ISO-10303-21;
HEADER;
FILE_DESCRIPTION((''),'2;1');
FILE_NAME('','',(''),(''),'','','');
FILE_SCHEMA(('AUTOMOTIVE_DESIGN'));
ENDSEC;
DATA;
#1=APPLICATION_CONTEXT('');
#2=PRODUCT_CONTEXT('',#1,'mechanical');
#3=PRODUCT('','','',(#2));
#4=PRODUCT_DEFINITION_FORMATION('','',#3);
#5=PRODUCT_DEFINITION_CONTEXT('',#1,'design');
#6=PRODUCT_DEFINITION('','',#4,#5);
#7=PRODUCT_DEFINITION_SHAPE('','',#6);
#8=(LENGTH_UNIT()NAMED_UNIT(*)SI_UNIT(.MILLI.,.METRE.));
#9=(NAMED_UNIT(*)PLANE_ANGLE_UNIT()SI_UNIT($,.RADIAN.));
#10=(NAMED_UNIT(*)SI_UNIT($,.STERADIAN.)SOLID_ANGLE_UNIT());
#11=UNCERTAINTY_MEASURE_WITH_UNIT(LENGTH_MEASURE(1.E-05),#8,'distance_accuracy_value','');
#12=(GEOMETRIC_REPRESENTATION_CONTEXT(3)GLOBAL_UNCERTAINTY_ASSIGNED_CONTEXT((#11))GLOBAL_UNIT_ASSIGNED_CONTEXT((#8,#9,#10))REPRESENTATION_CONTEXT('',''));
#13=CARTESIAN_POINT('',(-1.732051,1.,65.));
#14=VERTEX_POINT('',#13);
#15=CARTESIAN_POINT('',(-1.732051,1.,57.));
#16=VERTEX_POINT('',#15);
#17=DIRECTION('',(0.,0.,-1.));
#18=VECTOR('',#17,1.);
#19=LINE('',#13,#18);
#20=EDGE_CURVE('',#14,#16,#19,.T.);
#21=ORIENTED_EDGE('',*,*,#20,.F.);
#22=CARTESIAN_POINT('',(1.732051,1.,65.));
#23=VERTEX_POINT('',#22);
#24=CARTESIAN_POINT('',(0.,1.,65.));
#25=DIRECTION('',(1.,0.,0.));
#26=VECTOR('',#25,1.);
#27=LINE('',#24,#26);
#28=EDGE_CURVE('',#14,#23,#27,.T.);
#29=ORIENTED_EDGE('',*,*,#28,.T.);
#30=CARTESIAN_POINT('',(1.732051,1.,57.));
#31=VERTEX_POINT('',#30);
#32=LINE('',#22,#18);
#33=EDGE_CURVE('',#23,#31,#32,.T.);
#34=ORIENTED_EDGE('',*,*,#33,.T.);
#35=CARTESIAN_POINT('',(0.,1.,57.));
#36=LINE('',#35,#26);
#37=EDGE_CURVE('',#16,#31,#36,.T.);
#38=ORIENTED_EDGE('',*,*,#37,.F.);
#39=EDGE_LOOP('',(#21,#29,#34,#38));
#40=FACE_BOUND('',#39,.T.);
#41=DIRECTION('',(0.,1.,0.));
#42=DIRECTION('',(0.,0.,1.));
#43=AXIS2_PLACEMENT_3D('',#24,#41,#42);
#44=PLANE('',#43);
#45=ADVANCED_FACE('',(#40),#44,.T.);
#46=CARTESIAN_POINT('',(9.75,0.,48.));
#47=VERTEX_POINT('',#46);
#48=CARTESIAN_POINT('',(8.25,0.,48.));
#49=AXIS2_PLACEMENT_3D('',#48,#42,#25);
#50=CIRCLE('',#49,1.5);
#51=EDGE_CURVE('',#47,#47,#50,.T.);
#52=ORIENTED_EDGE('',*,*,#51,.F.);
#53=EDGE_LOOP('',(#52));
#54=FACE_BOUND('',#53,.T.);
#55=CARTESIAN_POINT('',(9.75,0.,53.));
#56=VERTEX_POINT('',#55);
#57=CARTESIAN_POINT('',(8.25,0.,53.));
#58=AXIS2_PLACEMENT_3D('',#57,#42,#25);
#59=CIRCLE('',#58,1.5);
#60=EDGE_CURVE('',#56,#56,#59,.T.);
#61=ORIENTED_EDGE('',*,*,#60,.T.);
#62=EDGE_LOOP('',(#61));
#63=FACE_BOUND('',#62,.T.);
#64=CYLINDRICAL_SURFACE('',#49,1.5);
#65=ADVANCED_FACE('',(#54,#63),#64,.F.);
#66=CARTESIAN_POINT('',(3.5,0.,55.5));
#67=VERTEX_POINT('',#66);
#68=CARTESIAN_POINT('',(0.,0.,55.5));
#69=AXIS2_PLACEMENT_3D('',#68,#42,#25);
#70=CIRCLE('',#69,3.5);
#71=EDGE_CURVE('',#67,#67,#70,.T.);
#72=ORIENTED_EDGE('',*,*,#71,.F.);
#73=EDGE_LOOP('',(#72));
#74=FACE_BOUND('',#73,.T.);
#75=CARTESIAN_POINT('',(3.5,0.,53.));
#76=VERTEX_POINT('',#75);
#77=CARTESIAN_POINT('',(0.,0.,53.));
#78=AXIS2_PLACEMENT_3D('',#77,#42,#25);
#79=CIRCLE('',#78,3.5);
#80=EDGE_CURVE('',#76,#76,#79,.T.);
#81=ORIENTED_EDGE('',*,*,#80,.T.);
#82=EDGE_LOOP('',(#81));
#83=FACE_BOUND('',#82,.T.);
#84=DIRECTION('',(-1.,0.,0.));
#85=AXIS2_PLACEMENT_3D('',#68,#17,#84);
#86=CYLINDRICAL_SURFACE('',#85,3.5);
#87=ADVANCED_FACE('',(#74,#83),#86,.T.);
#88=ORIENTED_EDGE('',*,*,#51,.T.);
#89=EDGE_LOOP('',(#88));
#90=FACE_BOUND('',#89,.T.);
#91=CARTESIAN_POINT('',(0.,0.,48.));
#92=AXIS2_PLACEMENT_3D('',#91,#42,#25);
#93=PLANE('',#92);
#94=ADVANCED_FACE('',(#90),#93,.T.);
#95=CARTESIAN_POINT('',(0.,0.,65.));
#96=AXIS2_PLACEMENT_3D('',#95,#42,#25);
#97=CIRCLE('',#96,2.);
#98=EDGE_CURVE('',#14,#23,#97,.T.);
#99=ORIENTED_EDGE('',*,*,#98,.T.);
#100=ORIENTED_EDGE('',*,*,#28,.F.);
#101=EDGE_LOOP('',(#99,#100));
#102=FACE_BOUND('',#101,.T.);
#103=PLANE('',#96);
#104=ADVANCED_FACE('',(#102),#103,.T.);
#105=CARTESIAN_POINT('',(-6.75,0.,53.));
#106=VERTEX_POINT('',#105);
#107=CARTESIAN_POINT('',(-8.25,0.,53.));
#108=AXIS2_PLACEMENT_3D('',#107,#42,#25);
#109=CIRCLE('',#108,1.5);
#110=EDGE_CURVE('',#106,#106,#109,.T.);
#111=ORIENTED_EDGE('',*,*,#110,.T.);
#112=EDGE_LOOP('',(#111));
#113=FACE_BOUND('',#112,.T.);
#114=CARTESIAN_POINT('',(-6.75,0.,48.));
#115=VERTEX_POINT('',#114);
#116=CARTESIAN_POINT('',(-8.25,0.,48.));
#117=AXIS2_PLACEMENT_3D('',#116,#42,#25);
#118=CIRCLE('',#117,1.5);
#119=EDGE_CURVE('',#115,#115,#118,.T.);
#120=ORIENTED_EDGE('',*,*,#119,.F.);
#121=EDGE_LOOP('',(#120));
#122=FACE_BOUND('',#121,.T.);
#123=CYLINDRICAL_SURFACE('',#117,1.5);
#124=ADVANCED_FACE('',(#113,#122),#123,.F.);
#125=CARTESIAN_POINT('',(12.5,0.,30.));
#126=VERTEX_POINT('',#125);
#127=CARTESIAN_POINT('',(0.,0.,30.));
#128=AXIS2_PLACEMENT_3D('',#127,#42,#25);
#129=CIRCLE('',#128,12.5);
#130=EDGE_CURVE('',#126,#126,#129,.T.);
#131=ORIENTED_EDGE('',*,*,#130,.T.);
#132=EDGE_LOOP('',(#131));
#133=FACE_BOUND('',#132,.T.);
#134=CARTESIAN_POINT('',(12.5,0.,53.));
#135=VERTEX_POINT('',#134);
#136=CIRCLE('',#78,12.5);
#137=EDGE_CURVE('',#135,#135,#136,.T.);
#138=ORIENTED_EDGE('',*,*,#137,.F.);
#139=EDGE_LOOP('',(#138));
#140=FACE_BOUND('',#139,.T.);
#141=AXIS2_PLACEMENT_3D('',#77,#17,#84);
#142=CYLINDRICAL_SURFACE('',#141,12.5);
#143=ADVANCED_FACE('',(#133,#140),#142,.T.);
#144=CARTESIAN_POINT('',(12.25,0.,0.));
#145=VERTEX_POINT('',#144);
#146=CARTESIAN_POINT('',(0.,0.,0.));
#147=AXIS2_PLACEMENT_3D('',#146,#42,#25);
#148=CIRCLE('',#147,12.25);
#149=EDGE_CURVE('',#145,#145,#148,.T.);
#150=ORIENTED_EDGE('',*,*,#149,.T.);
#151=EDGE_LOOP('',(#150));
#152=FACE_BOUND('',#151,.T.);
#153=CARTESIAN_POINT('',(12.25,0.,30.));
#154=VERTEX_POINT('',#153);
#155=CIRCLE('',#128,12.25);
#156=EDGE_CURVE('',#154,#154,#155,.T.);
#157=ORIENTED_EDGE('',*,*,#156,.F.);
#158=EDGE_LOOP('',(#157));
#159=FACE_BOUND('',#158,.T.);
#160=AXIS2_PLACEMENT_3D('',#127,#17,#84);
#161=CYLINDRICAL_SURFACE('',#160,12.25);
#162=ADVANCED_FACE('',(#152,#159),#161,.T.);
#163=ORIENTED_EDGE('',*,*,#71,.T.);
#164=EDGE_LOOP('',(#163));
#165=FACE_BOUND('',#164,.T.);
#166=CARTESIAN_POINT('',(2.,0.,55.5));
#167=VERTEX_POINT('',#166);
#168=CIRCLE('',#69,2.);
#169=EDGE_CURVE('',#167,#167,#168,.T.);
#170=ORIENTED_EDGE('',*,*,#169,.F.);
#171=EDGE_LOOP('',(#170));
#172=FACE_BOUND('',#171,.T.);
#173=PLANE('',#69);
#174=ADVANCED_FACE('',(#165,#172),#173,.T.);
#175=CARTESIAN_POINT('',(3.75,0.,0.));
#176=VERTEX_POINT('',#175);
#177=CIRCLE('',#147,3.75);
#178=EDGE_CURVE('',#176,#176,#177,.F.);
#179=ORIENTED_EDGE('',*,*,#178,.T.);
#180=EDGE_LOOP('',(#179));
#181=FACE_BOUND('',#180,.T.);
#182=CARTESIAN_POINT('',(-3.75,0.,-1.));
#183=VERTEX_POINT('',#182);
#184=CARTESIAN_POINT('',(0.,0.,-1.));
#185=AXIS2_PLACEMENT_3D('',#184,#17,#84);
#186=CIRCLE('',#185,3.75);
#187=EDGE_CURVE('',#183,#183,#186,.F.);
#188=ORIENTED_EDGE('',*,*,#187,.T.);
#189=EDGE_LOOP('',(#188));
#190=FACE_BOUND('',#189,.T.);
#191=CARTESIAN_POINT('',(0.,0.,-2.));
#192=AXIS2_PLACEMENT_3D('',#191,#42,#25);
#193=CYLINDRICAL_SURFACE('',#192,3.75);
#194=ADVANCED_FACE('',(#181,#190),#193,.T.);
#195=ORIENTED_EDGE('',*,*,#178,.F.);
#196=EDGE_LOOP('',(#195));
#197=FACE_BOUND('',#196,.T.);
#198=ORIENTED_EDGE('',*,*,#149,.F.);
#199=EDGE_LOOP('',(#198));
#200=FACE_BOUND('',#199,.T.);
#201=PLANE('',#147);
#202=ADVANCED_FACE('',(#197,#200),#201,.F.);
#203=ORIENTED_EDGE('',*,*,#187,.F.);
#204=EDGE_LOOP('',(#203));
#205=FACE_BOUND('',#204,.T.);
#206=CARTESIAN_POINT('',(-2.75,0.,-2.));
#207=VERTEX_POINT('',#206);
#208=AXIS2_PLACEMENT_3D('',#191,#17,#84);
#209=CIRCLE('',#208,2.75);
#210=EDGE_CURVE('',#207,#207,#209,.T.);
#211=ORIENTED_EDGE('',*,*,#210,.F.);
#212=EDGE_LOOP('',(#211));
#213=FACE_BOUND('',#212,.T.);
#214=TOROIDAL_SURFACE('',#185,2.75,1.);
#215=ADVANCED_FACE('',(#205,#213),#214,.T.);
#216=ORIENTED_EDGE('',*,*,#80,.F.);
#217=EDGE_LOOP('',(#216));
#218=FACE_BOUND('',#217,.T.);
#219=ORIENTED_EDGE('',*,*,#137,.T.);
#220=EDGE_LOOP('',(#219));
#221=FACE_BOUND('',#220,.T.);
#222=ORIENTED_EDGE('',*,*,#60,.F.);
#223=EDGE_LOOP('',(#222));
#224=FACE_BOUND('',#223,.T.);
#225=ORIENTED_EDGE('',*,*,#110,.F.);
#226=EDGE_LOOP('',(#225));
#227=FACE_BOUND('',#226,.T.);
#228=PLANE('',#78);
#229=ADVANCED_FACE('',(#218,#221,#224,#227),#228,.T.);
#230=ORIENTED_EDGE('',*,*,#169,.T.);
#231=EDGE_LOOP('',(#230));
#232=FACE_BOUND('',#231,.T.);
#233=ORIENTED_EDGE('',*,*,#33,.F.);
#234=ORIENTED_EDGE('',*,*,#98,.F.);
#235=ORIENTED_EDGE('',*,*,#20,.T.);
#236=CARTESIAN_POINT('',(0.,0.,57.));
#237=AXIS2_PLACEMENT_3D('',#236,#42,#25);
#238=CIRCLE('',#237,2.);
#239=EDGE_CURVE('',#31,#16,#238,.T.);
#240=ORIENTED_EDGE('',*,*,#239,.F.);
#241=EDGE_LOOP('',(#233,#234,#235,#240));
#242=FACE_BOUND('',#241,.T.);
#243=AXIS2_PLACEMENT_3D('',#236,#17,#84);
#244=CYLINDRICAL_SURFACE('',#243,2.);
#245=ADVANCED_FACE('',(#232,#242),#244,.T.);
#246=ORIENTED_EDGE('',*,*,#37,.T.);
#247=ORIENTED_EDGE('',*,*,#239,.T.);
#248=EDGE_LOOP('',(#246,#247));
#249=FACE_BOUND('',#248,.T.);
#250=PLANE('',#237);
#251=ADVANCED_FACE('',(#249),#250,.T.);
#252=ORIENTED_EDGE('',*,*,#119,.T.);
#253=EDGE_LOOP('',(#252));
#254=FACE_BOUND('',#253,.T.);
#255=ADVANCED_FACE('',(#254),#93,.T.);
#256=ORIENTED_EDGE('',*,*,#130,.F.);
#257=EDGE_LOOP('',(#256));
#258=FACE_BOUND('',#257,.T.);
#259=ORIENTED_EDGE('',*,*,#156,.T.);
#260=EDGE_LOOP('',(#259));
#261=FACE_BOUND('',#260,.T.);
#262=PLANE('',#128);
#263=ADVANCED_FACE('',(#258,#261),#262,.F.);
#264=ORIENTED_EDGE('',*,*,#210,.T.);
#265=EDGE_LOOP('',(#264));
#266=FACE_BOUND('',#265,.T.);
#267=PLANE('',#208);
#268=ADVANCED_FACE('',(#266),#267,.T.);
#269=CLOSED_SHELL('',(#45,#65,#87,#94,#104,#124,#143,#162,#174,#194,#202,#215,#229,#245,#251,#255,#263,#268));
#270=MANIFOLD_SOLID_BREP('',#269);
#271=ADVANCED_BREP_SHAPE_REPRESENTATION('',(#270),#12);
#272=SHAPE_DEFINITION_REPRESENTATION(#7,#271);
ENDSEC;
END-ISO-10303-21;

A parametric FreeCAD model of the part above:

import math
import FreeCAD as App
import Part
import Sketcher

V = App.Vector
Q = App.Units.Quantity


def edges_at(feature, points):
    """Names of the edges that pass closest to the given points."""
    edges = feature.Shape.Edges
    near = lambda p: min(range(len(edges)), key=lambda i: edges[i].distToShape(Part.Vertex(*p))[0])
    return sorted({f"Edge{near(p) + 1}" for p in points})

doc = App.newDocument("Part")
body = doc.addObject("PartDesign::Body", "Body")

# Sketch on XY plane
sketch1 = body.newObject("Sketcher::SketchObject", "Sketch")
sketch1.AttachmentSupport = (doc.getObject("XY_Plane"), [""])
sketch1.MapMode = "FlatFace"
sketch1.addGeometry(Part.Circle(V(0, 0, 0), V(0, 0, 1), 12.25), False)
sketch1.addConstraint([
    Sketcher.Constraint("Coincident", 0, 3, -1, 1),
    Sketcher.Constraint("Diameter", 0, Q("24.5 mm")),
])
pad1 = body.newObject("PartDesign::Pad", "Pad")
pad1.Profile = sketch1
pad1.Length = 30

# Sketch on XY plane
sketch2 = body.newObject("Sketcher::SketchObject", "Sketch001")
sketch2.AttachmentSupport = (doc.getObject("XY_Plane"), [""])
sketch2.MapMode = "FlatFace"
sketch2.AttachmentOffset = App.Placement(V(0, 0, 30), App.Rotation())
sketch2.addGeometry(Part.Circle(V(0, 0, 0), V(0, 0, 1), 12.5), False)
sketch2.addConstraint([
    Sketcher.Constraint("Coincident", 0, 3, -1, 1),
    Sketcher.Constraint("Diameter", 0, Q("25 mm")),
])
pad2 = body.newObject("PartDesign::Pad", "Pad001")
pad2.Profile = sketch2
pad2.Length = 23

# Sketch on XY plane
sketch3 = body.newObject("Sketcher::SketchObject", "Sketch002")
sketch3.AttachmentSupport = (doc.getObject("XY_Plane"), [""])
sketch3.MapMode = "FlatFace"
sketch3.AttachmentOffset = App.Placement(V(0, 0, 53), App.Rotation())
sketch3.addGeometry([
    Part.Circle(V(-8.25, 0, 0), V(0, 0, 1), 1.5),
    Part.Circle(V(8.25, 0, 0), V(0, 0, 1), 1.5),
], False)
sketch3.addConstraint([
    Sketcher.Constraint("Equal", 0, 1),
    Sketcher.Constraint("Symmetric", 0, 3, 1, 3, -1, 1),
    Sketcher.Constraint("PointOnObject", 0, 3, -1),
    Sketcher.Constraint("Diameter", 0, Q("3 mm")),
    Sketcher.Constraint("DistanceX", 0, 3, 1, 3, Q("16.5 mm")),
])
pocket1 = body.newObject("PartDesign::Pocket", "Pocket")
pocket1.Profile = sketch3
pocket1.Length = 5

# Sketch on XY plane
sketch4 = body.newObject("Sketcher::SketchObject", "Sketch003")
sketch4.AttachmentSupport = (doc.getObject("XY_Plane"), [""])
sketch4.MapMode = "FlatFace"
sketch4.AttachmentOffset = App.Placement(V(0, 0, 53), App.Rotation())
sketch4.addGeometry(Part.Circle(V(0, 0, 0), V(0, 0, 1), 3.5), False)
sketch4.addConstraint([
    Sketcher.Constraint("Coincident", 0, 3, -1, 1),
    Sketcher.Constraint("Diameter", 0, Q("7 mm")),
])
pad3 = body.newObject("PartDesign::Pad", "Pad002")
pad3.Profile = sketch4
pad3.Length = 2.5

# Sketch on XY plane
sketch5 = body.newObject("Sketcher::SketchObject", "Sketch004")
sketch5.AttachmentSupport = (doc.getObject("XY_Plane"), [""])
sketch5.MapMode = "FlatFace"
sketch5.AttachmentOffset = App.Placement(V(0, 0, 55.5), App.Rotation())
sketch5.addGeometry(Part.Circle(V(0, 0, 0), V(0, 0, 1), 2), False)
sketch5.addConstraint([
    Sketcher.Constraint("Coincident", 0, 3, -1, 1),
    Sketcher.Constraint("Diameter", 0, Q("4 mm")),
])
pad4 = body.newObject("PartDesign::Pad", "Pad003")
pad4.Profile = sketch5
pad4.Length = 1.5

# Sketch on XY plane
sketch6 = body.newObject("Sketcher::SketchObject", "Sketch005")
sketch6.AttachmentSupport = (doc.getObject("XY_Plane"), [""])
sketch6.MapMode = "FlatFace"
sketch6.AttachmentOffset = App.Placement(V(0, 0, 57), App.Rotation())
sketch6.addGeometry([
    Part.LineSegment(V(1.732051, 1, 0), V(-1.732051, 1, 0)),
    Part.ArcOfCircle(Part.Circle(V(0, 0, 0), V(0, 0, 1), 2), math.radians(150), math.radians(360)),
    Part.ArcOfCircle(Part.Circle(V(0, 0, 0), V(0, 0, 1), 2), math.radians(0), math.radians(30)),
], False)
sketch6.addConstraint([
    Sketcher.Constraint("Coincident", 0, 2, 1, 1),
    Sketcher.Constraint("Tangent", 1, 2, 2, 1),
    Sketcher.Constraint("Coincident", 2, 2, 0, 1),
    Sketcher.Constraint("Horizontal", 0),
    Sketcher.Constraint("Coincident", 1, 3, -1, 1),
    Sketcher.Constraint("Equal", 1, 2),
    Sketcher.Constraint("PointOnObject", 1, 2, -1),
    Sketcher.Constraint("Radius", 1, Q("2 mm")),
    Sketcher.Constraint("DistanceY", -1, 1, 0, 2, Q("1 mm")),
])
pad5 = body.newObject("PartDesign::Pad", "Pad004")
pad5.Profile = sketch6
pad5.Length = 8

# Sketch on XY plane
sketch7 = body.newObject("Sketcher::SketchObject", "Sketch006")
sketch7.AttachmentSupport = (doc.getObject("XY_Plane"), [""])
sketch7.MapMode = "FlatFace"
sketch7.addGeometry(Part.Circle(V(0, 0, 0), V(0, 0, 1), 3.75), False)
sketch7.addConstraint([
    Sketcher.Constraint("Coincident", 0, 3, -1, 1),
    Sketcher.Constraint("Diameter", 0, Q("7.5 mm")),
])
pad6 = body.newObject("PartDesign::Pad", "Pad005")
pad6.Profile = sketch7
pad6.Length = 2
pad6.Reversed = True
doc.recompute()

fillet = body.newObject("PartDesign::Fillet", "Fillet")
fillet.Base = (pad6, edges_at(pad6, [(-3.75, 0, -2)]))
fillet.Radius = 1

doc.recompute()
